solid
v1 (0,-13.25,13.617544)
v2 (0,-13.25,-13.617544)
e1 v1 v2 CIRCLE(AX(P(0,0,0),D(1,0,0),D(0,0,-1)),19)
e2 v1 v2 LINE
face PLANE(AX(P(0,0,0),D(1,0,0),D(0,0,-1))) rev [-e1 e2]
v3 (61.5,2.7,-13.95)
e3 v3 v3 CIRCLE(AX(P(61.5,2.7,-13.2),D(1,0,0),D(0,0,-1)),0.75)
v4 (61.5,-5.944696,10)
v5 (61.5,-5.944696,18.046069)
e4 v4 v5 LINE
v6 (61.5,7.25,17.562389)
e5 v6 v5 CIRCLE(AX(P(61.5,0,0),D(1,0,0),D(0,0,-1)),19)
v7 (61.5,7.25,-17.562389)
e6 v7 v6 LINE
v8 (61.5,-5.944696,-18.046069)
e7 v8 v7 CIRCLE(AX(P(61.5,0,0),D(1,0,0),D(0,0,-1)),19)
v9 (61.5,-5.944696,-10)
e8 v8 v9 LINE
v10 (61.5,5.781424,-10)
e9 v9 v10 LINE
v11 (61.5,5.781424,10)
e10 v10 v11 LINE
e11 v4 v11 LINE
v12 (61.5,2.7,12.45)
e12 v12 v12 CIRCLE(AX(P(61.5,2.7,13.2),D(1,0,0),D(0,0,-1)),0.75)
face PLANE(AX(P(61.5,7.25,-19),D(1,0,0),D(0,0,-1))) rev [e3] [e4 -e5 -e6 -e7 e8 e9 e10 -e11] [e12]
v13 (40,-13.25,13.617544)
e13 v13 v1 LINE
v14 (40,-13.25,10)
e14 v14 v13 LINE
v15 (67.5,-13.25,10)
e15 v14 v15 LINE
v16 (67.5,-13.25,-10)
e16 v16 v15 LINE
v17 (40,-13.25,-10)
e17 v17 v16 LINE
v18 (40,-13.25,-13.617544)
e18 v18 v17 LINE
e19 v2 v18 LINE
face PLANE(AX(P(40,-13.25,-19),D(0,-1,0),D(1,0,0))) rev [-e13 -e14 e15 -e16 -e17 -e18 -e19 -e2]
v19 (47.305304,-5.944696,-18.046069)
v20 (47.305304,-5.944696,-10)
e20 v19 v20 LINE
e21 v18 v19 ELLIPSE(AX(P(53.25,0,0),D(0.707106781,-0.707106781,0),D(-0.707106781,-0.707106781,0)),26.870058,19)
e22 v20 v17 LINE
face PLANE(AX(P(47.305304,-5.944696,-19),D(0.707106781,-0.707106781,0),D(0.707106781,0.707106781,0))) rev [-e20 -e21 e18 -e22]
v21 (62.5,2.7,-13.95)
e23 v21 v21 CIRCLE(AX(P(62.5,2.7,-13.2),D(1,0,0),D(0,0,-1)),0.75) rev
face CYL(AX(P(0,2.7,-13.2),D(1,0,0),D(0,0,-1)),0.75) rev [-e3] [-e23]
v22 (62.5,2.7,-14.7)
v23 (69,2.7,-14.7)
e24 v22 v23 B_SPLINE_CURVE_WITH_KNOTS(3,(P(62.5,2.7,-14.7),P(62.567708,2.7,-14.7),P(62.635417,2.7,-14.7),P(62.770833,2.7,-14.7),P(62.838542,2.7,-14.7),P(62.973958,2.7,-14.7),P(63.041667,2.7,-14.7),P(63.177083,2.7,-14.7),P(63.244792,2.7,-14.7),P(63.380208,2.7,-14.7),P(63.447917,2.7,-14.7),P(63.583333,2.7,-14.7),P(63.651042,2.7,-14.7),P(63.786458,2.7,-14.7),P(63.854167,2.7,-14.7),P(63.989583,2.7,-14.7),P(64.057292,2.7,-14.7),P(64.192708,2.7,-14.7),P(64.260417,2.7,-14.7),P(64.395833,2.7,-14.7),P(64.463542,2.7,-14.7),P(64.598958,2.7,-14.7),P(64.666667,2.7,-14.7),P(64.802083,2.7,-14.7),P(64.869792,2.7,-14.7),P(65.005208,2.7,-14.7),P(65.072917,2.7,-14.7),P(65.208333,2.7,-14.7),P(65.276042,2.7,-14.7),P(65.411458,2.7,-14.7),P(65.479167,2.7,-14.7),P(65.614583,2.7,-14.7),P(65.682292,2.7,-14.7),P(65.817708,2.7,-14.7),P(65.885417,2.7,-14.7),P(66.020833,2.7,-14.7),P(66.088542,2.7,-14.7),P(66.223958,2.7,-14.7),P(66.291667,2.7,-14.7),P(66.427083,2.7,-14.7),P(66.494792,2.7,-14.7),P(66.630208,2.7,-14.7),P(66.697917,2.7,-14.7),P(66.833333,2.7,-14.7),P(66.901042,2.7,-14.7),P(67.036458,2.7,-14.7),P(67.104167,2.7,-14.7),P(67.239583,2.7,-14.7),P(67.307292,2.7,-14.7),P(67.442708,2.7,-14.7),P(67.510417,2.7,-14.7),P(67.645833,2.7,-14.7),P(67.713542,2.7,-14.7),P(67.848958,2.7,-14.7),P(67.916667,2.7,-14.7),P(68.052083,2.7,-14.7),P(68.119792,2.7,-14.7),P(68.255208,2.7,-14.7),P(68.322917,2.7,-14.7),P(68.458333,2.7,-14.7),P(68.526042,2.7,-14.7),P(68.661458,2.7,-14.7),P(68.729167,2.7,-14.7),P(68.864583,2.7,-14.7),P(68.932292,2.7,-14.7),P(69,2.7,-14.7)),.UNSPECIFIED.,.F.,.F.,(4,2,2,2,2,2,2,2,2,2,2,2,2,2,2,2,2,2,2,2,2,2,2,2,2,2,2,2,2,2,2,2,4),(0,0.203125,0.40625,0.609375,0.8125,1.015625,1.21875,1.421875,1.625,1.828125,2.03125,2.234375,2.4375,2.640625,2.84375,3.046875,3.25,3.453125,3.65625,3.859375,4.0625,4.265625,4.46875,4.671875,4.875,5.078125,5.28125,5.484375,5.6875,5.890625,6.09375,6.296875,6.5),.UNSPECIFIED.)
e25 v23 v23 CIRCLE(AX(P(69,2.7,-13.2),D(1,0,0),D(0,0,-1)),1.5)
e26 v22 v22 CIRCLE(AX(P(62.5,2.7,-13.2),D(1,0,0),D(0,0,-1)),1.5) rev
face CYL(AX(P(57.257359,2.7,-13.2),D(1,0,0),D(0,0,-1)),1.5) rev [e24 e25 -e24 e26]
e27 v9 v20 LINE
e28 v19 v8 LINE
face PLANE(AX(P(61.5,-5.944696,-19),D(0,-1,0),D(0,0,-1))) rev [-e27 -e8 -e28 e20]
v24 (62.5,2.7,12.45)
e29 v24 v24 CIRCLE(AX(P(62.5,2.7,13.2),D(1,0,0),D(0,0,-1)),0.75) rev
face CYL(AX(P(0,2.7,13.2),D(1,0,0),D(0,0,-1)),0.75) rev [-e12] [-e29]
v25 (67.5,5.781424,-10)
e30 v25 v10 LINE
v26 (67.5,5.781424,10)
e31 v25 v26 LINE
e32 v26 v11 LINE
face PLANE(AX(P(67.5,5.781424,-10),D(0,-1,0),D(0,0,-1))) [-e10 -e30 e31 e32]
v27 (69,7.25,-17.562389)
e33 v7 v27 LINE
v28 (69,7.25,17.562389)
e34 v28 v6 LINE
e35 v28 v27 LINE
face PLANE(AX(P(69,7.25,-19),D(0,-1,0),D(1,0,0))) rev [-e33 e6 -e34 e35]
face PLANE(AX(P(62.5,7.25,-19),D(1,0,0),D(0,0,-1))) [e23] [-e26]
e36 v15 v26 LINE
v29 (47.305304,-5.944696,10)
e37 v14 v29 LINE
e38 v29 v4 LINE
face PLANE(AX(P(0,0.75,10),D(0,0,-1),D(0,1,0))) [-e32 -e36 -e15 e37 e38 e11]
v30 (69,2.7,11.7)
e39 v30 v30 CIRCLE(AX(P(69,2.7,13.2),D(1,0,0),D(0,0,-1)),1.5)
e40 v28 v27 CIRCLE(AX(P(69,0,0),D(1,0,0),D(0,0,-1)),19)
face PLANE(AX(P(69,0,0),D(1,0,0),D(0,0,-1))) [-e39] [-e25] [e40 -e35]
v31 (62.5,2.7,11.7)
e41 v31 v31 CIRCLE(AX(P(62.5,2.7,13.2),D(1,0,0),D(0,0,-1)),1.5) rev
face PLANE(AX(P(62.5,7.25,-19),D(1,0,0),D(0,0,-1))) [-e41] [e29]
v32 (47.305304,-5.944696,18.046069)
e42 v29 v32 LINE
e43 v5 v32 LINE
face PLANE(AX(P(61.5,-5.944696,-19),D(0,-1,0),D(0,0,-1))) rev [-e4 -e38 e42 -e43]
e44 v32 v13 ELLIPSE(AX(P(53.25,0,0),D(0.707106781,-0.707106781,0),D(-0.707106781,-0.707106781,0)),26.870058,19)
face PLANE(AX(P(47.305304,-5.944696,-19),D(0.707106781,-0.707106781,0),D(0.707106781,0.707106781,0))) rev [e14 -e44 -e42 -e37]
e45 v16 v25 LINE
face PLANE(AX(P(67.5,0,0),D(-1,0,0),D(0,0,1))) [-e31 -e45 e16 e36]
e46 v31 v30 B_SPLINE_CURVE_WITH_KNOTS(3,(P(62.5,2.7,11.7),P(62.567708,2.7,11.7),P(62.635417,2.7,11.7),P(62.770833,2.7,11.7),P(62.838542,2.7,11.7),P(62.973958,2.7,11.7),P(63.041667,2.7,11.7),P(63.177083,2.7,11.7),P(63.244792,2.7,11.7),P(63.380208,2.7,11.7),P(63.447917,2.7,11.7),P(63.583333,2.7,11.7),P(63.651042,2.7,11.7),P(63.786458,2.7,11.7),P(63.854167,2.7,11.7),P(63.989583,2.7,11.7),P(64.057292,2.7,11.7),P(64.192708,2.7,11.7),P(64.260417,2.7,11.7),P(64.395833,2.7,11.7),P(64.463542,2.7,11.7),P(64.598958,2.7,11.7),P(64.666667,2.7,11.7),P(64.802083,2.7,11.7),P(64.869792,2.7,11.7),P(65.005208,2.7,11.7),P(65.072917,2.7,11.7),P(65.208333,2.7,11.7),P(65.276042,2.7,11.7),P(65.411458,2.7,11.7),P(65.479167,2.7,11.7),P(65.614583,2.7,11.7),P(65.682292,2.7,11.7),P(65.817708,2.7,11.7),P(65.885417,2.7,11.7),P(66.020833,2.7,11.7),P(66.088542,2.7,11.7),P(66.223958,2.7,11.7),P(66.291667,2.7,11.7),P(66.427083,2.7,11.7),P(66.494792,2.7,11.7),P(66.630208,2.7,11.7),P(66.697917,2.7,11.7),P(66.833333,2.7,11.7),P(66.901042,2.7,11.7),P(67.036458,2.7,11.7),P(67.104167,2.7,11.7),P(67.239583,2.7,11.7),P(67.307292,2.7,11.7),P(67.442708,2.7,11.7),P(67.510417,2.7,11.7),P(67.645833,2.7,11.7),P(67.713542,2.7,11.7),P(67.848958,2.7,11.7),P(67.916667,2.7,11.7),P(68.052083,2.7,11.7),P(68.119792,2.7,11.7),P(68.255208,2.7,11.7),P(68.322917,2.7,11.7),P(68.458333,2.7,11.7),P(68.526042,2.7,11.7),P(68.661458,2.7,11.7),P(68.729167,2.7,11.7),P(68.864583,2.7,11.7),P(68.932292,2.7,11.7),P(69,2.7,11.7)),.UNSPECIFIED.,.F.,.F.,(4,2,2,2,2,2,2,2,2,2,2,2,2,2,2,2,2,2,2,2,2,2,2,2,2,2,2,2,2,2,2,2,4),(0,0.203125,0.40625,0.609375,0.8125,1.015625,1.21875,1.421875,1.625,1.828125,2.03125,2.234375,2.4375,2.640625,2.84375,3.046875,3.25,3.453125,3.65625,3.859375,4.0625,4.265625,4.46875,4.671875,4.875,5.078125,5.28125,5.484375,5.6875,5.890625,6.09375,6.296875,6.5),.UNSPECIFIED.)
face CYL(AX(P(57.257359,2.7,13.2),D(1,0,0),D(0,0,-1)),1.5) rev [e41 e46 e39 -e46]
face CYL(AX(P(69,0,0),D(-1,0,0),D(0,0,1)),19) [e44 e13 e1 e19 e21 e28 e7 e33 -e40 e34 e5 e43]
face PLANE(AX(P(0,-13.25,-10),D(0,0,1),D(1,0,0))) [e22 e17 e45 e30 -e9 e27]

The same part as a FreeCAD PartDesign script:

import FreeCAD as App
import Part
import Sketcher

V = App.Vector
Q = App.Units.Quantity


def add_polygon(sketch, points):
    """Adds a closed chain of lines whose ends are joined by coincident constraints."""
    first, n = sketch.GeometryCount, len(points)
    for a, b in zip(points, points[1:] + points[:1]):
        sketch.addGeometry(Part.LineSegment(App.Vector(*a, 0), App.Vector(*b, 0)), False)
    for i in range(n):
        sketch.addConstraint(Sketcher.Constraint("Coincident", first + i, 2, first + (i + 1) % n, 1))

doc = App.newDocument("Part")
params = doc.addObject("Spreadsheet::Sheet", "Params")
for row, (alias, value) in enumerate([
    ("sketch1_diameter", "38 mm"),
    ("pad1_length", "69 mm"),
    ("sketch2_width", "69 mm"),
    ("sketch2_width2", "40 mm"),
    ("sketch2_width3", "7.5 mm"),
    ("sketch3_width", "14 mm"),
    ("sketch3_height", "20 mm"),
    ("sketch4_height", "20 mm"),
    ("pocket3_length", "6 mm"),
    ("sketch5_diameter", "1.5 mm"),
    ("sketch6_diameter", "3 mm"),
    ("pocket5_length", "6.5 mm"),
], start=1):
    params.set(f"A{row}", alias)
    params.set(f"B{row}", "=" + value)
    params.setAlias(f"B{row}", alias)

body = doc.addObject("PartDesign::Body", "Body")

# Sketch on YZ plane
sketch1 = body.newObject("Sketcher::SketchObject", "Sketch")
sketch1.AttachmentSupport = (doc.getObject("YZ_Plane"), [""])
sketch1.MapMode = "FlatFace"
sketch1.addGeometry(Part.Circle(V(0, 0, 0), V(0, 0, 1), 19), False)
sketch1.addConstraint([
    Sketcher.Constraint("Coincident", 0, 3, -1, 1),
    Sketcher.Constraint("Diameter", 0, Q("38 mm")),
])
sketch1.setExpression("Constraints[1]", "Params.sketch1_diameter")
pad1 = body.newObject("PartDesign::Pad", "Pad")
pad1.Profile = sketch1
pad1.setExpression("Length", "Params.pad1_length")

# Sketch on XY plane
sketch2 = body.newObject("Sketcher::SketchObject", "Sketch001")
sketch2.AttachmentSupport = (doc.getObject("XY_Plane"), [""])
sketch2.MapMode = "FlatFace"
add_polygon(sketch2, [(61.5, 7.25), (69, 7.25), (69, 41.360608), (0, 41.360608), (0, -13.25), (40, -13.25), (47.305304, -5.944696), (61.5, -5.944696)])  # lines 0-7
sketch2.addConstraint([
    Sketcher.Constraint("Horizontal", 0),
    Sketcher.Constraint("Vertical", 1),
    Sketcher.Constraint("Horizontal", 2),
    Sketcher.Constraint("Vertical", 3),
    Sketcher.Constraint("Horizontal", 4),
    Sketcher.Constraint("Horizontal", 6),
    Sketcher.Constraint("Vertical", 7),
    Sketcher.Constraint("PointOnObject", 2, 2, -2),
    Sketcher.Constraint("DistanceX", 2, 2, 2, 1, Q("69 mm")),
    Sketcher.Constraint("DistanceX", 4, 1, 4, 2, Q("40 mm")),
    Sketcher.Constraint("Angle", 5, Q("45 deg")),
    Sketcher.Constraint("DistanceX", 0, 1, 0, 2, Q("7.5 mm")),
    Sketcher.Constraint("DistanceY", 3, 2, 0, 2, Q("20.5 mm")),
    Sketcher.Constraint("DistanceY", -1, 1, 0, 2, Q("7.25 mm")),
    Sketcher.Constraint("DistanceY", 1, 1, 1, 2, Q("34.110608 mm")),
    Sketcher.Constraint("Distance", 5, Q("10.33126 mm")),
])
sketch2.setExpression("Constraints[16]", "Params.sketch2_width")
sketch2.setExpression("Constraints[17]", "Params.sketch2_width2")
sketch2.setExpression("Constraints[19]", "Params.sketch2_width3")
pocket1 = body.newObject("PartDesign::Pocket", "Pocket")
pocket1.Profile = sketch2
pocket1.Type = "ThroughAll"
pocket1.Midplane = True

# Sketch on YZ plane
sketch3 = body.newObject("Sketcher::SketchObject", "Sketch002")
sketch3.AttachmentSupport = (doc.getObject("YZ_Plane"), [""])
sketch3.MapMode = "FlatFace"
sketch3.AttachmentOffset = App.Placement(V(0, 0, 61.5), App.Rotation())
add_polygon(sketch3, [(0.75, -10), (-13.25, -10), (-13.25, 10), (0.75, 10)])  # lines 0-3
sketch3.addConstraint([
    Sketcher.Constraint("Horizontal", 0),
    Sketcher.Constraint("Vertical", 1),
    Sketcher.Constraint("Horizontal", 2),
    Sketcher.Constraint("Vertical", 3),
    Sketcher.Constraint("DistanceX", 0, 2, 0, 1, Q("14 mm")),
    Sketcher.Constraint("DistanceY", 1, 1, 1, 2, Q("20 mm")),
    Sketcher.Constraint("DistanceY", 0, 2, -1, 1, Q("10 mm")),
    Sketcher.Constraint("DistanceX", 0, 2, -1, 1, Q("13.25 mm")),
])
sketch3.setExpression("Constraints[8]", "Params.sketch3_width")
sketch3.setExpression("Constraints[9]", "Params.sketch3_height")
pocket2 = body.newObject("PartDesign::Pocket", "Pocket001")
pocket2.Profile = sketch3
pocket2.Type = "ThroughAll"

# Sketch on YZ plane
sketch4 = body.newObject("Sketcher::SketchObject", "Sketch003")
sketch4.AttachmentSupport = (doc.getObject("YZ_Plane"), [""])
sketch4.MapMode = "FlatFace"
sketch4.AttachmentOffset = App.Placement(V(0, 0, 61.5), App.Rotation())
add_polygon(sketch4, [(5.781424, -10), (-13.25, -10), (-13.25, 10), (5.781424, 10)])  # lines 0-3
sketch4.addConstraint([
    Sketcher.Constraint("Horizontal", 0),
    Sketcher.Constraint("Vertical", 1),
    Sketcher.Constraint("Horizontal", 2),
    Sketcher.Constraint("Vertical", 3),
    Sketcher.Constraint("DistanceY", 1, 1, 1, 2, Q("20 mm")),
    Sketcher.Constraint("DistanceY", 0, 2, -1, 1, Q("10 mm")),
    Sketcher.Constraint("DistanceX", 0, 2, -1, 1, Q("13.25 mm")),
    Sketcher.Constraint("DistanceX", 0, 2, 0, 1, Q("19.031424 mm")),
])
sketch4.setExpression("Constraints[8]", "Params.sketch4_height")
pocket3 = body.newObject("PartDesign::Pocket", "Pocket002")
pocket3.Profile = sketch4
pocket3.setExpression("Length", "Params.pocket3_length")
pocket3.Reversed = True

# Sketch on YZ plane
sketch5 = body.newObject("Sketcher::SketchObject", "Sketch004")
sketch5.AttachmentSupport = (doc.getObject("YZ_Plane"), [""])
sketch5.MapMode = "FlatFace"
sketch5.AttachmentOffset = App.Placement(V(0, 0, 69), App.Rotation())
sketch5.addGeometry([
    Part.Circle(V(2.7, 13.2, 0), V(0, 0, 1), 0.75),
    Part.Circle(V(2.7, -13.2, 0), V(0, 0, 1), 0.75),
], False)
sketch5.addConstraint([
    Sketcher.Constraint("Equal", 0, 1),
    Sketcher.Constraint("Symmetric", 0, 3, 1, 3, -1),
    Sketcher.Constraint("Diameter", 0, Q("1.5 mm")),
    Sketcher.Constraint("DistanceX", -1, 1, 0, 3, Q("2.7 mm")),
    Sketcher.Constraint("DistanceY", -1, 1, 0, 3, Q("13.2 mm")),
])
sketch5.setExpression("Constraints[2]", "Params.sketch5_diameter")
pocket4 = body.newObject("PartDesign::Pocket", "Pocket003")
pocket4.Profile = sketch5
pocket4.Type = "ThroughAll"

# Sketch on YZ plane
sketch6 = body.newObject("Sketcher::SketchObject", "Sketch005")
sketch6.AttachmentSupport = (doc.getObject("YZ_Plane"), [""])
sketch6.MapMode = "FlatFace"
sketch6.AttachmentOffset = App.Placement(V(0, 0, 69), App.Rotation())
sketch6.addGeometry([
    Part.Circle(V(2.7, 13.2, 0), V(0, 0, 1), 1.5),
    Part.Circle(V(2.7, -13.2, 0), V(0, 0, 1), 1.5),
], False)
sketch6.addConstraint([
    Sketcher.Constraint("Equal", 0, 1),
    Sketcher.Constraint("Symmetric", 0, 3, 1, 3, -1),
    Sketcher.Constraint("Diameter", 0, Q("3 mm")),
    Sketcher.Constraint("DistanceX", -1, 1, 0, 3, Q("2.7 mm")),
    Sketcher.Constraint("DistanceY", -1, 1, 0, 3, Q("13.2 mm")),
])
sketch6.setExpression("Constraints[2]", "Params.sketch6_diameter")
pocket5 = body.newObject("PartDesign::Pocket", "Pocket004")
pocket5.Profile = sketch6
pocket5.setExpression("Length", "Params.pocket5_length")

doc.recompute()
